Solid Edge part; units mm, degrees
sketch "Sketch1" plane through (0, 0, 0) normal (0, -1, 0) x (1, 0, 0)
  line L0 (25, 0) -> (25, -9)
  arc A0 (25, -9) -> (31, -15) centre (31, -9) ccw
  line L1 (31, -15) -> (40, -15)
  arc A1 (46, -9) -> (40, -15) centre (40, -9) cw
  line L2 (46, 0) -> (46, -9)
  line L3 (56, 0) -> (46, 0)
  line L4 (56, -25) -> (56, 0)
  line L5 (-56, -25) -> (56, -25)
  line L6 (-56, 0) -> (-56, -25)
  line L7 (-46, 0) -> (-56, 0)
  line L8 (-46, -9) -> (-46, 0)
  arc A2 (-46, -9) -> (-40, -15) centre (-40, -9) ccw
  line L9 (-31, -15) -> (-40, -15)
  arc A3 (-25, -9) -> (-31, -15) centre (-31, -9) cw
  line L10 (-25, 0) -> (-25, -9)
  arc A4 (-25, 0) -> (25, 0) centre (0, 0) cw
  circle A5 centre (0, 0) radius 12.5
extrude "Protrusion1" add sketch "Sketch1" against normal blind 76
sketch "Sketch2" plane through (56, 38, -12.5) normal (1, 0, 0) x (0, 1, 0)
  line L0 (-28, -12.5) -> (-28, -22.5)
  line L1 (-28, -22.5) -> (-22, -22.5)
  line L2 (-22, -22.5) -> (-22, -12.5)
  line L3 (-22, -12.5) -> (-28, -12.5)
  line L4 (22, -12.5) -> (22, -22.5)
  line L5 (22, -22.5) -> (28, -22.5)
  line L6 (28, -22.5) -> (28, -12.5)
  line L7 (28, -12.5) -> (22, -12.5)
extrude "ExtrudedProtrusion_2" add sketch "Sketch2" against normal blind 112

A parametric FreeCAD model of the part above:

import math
import FreeCAD as App
import Part
import Sketcher
from FreeCAD import Vector
Q = App.Units.Quantity


def add_polygon(sketch, points):
    """Adds a closed chain of lines whose ends are joined by coincident constraints."""
    first, n = sketch.GeometryCount, len(points)
    for a, b in zip(points, points[1:] + points[:1]):
        sketch.addGeometry(Part.LineSegment(App.Vector(*a, 0), App.Vector(*b, 0)), False)
    for i in range(n):
        sketch.addConstraint(Sketcher.Constraint("Coincident", first + i, 2, first + (i + 1) % n, 1))

doc = App.newDocument("Part")
body = doc.addObject("PartDesign::Body", "Body")

# Sketch on XZ plane
sketch1 = body.newObject("Sketcher::SketchObject", "Sketch")
sketch1.AttachmentSupport = (doc.getObject("XZ_Plane"), [""])
sketch1.MapMode = "FlatFace"
sketch1.addGeometry([
    Part.LineSegment(Vector(25, -9, 0), Vector(25, 0, 0)),  # 0
    Part.ArcOfCircle(Part.Circle(Vector(0, 0, 0), Vector(0, 0, 1), 25), math.radians(0), math.radians(180)),  # 1
    Part.LineSegment(Vector(-25, 0, 0), Vector(-25, -9, 0)),  # 2
    Part.ArcOfCircle(Part.Circle(Vector(-31, -9, 0), Vector(0, 0, 1), 6), math.radians(-90), math.radians(0)),  # 3
    Part.LineSegment(Vector(-31, -15, 0), Vector(-40, -15, 0)),  # 4
    Part.ArcOfCircle(Part.Circle(Vector(-40, -9, 0), Vector(0, 0, 1), 6), math.radians(180), math.radians(270)),  # 5
    Part.LineSegment(Vector(-46, -9, 0), Vector(-46, 0, 0)),  # 6
    Part.LineSegment(Vector(-46, 0, 0), Vector(-56, 0, 0)),  # 7
    Part.LineSegment(Vector(-56, 0, 0), Vector(-56, -25, 0)),  # 8
    Part.LineSegment(Vector(-56, -25, 0), Vector(56, -25, 0)),  # 9
    Part.LineSegment(Vector(56, -25, 0), Vector(56, 0, 0)),  # 10
    Part.LineSegment(Vector(56, 0, 0), Vector(46, 0, 0)),  # 11
    Part.LineSegment(Vector(46, 0, 0), Vector(46, -9, 0)),  # 12
    Part.ArcOfCircle(Part.Circle(Vector(40, -9, 0), Vector(0, 0, 1), 6), math.radians(-90), math.radians(0)),  # 13
    Part.LineSegment(Vector(40, -15, 0), Vector(31, -15, 0)),  # 14
    Part.ArcOfCircle(Part.Circle(Vector(31, -9, 0), Vector(0, 0, 1), 6), math.radians(180), math.radians(270)),  # 15
    Part.Circle(Vector(0, 0, 0), Vector(0, 0, 1), 12),  # 16
], False)
sketch1.addConstraint([
    Sketcher.Constraint("Tangent", 0, 2, 1, 1),
    Sketcher.Constraint("Tangent", 1, 2, 2, 1),
    Sketcher.Constraint("Tangent", 2, 2, 3, 2),
    Sketcher.Constraint("Tangent", 3, 1, 4, 1),
    Sketcher.Constraint("Tangent", 4, 2, 5, 2),
    Sketcher.Constraint("Tangent", 5, 1, 6, 1),
    Sketcher.Constraint("Coincident", 6, 2, 7, 1),
    Sketcher.Constraint("Coincident", 7, 2, 8, 1),
    Sketcher.Constraint("Coincident", 8, 2, 9, 1),
    Sketcher.Constraint("Coincident", 9, 2, 10, 1),
    Sketcher.Constraint("Coincident", 10, 2, 11, 1),
    Sketcher.Constraint("Coincident", 11, 2, 12, 1),
    Sketcher.Constraint("Tangent", 12, 2, 13, 2),
    Sketcher.Constraint("Tangent", 13, 1, 14, 1),
    Sketcher.Constraint("Tangent", 14, 2, 15, 2),
    Sketcher.Constraint("Tangent", 15, 1, 0, 1),
    Sketcher.Constraint("Vertical", 0),
    Sketcher.Constraint("Vertical", 2),
    Sketcher.Constraint("Horizontal", 4),
    Sketcher.Constraint("Vertical", 6),
    Sketcher.Constraint("Horizontal", 7),
    Sketcher.Constraint("Vertical", 8),
    Sketcher.Constraint("Horizontal", 9),
    Sketcher.Constraint("Vertical", 10),
    Sketcher.Constraint("Horizontal", 11),
    Sketcher.Constraint("Vertical", 12),
    Sketcher.Constraint("Horizontal", 14),
    Sketcher.Constraint("Coincident", 1, 3, -1, 1),
    Sketcher.Constraint("Coincident", 16, 3, -1, 1),
    Sketcher.Constraint("Equal", 3, 5),
    Sketcher.Constraint("Equal", 5, 13),
    Sketcher.Constraint("Equal", 13, 15),
    Sketcher.Constraint("Symmetric", 7, 2, 10, 2, -1, 1),
    Sketcher.Constraint("Symmetric", 5, 3, 13, 3, -2),
    Sketcher.Constraint("PointOnObject", 6, 2, -1),
    Sketcher.Constraint("Equal", 14, 0),
    Sketcher.Constraint("Diameter", 16, Q("25 mm")),
    Sketcher.Constraint("Radius", 1, Q("25 mm")),
    Sketcher.Constraint("Radius", 3, Q("6 mm")),
    Sketcher.Constraint("DistanceX", 4, 2, 4, 1, Q("9 mm")),
    Sketcher.Constraint("DistanceX", 7, 2, 7, 1, Q("10 mm")),
    Sketcher.Constraint("DistanceY", 8, 2, 8, 1, Q("25 mm")),
])
pad1 = body.newObject("PartDesign::Pad", "Pad")
pad1.Profile = sketch1
pad1.Length = 76
pad1.Reversed = True

# Sketch on YZ plane
sketch2 = body.newObject("Sketcher::SketchObject", "Sketch001")
sketch2.AttachmentSupport = (doc.getObject("YZ_Plane"), [""])
sketch2.MapMode = "FlatFace"
sketch2.AttachmentOffset = App.Placement(Vector(0, 0, 56), App.Rotation())
add_polygon(sketch2, [(16, -25), (10, -25), (10, -35), (16, -35)])  # lines 0-3
add_polygon(sketch2, [(66, -25), (60, -25), (60, -35), (66, -35)])  # lines 4-7
sketch2.addConstraint([
    Sketcher.Constraint("Horizontal", 0),
    Sketcher.Constraint("Vertical", 1),
    Sketcher.Constraint("Horizontal", 2),
    Sketcher.Constraint("Vertical", 3),
    Sketcher.Constraint("Horizontal", 4),
    Sketcher.Constraint("Vertical", 5),
    Sketcher.Constraint("Horizontal", 6),
    Sketcher.Constraint("Vertical", 7),
    Sketcher.Constraint("Horizontal", 3, 2, 4, 2),
    Sketcher.Constraint("Horizontal", 2, 2, 5, 2),
    Sketcher.Constraint("Equal", 2, 4),
    Sketcher.Constraint("DistanceX", 0, 2, 0, 1, Q("6 mm")),
    Sketcher.Constraint("DistanceY", 1, 2, 1, 1, Q("10 mm")),
    Sketcher.Constraint("DistanceX", -1, 1, 0, 2, Q("10 mm")),
    Sketcher.Constraint("DistanceY", 0, 2, -1, 1, Q("25 mm")),
    Sketcher.Constraint("DistanceX", -1, 1, 4, 2, Q("60 mm")),
])
pad2 = body.newObject("PartDesign::Pad", "Pad001")
pad2.Profile = sketch2
pad2.Length = 112
pad2.Reversed = True

doc.recompute()
